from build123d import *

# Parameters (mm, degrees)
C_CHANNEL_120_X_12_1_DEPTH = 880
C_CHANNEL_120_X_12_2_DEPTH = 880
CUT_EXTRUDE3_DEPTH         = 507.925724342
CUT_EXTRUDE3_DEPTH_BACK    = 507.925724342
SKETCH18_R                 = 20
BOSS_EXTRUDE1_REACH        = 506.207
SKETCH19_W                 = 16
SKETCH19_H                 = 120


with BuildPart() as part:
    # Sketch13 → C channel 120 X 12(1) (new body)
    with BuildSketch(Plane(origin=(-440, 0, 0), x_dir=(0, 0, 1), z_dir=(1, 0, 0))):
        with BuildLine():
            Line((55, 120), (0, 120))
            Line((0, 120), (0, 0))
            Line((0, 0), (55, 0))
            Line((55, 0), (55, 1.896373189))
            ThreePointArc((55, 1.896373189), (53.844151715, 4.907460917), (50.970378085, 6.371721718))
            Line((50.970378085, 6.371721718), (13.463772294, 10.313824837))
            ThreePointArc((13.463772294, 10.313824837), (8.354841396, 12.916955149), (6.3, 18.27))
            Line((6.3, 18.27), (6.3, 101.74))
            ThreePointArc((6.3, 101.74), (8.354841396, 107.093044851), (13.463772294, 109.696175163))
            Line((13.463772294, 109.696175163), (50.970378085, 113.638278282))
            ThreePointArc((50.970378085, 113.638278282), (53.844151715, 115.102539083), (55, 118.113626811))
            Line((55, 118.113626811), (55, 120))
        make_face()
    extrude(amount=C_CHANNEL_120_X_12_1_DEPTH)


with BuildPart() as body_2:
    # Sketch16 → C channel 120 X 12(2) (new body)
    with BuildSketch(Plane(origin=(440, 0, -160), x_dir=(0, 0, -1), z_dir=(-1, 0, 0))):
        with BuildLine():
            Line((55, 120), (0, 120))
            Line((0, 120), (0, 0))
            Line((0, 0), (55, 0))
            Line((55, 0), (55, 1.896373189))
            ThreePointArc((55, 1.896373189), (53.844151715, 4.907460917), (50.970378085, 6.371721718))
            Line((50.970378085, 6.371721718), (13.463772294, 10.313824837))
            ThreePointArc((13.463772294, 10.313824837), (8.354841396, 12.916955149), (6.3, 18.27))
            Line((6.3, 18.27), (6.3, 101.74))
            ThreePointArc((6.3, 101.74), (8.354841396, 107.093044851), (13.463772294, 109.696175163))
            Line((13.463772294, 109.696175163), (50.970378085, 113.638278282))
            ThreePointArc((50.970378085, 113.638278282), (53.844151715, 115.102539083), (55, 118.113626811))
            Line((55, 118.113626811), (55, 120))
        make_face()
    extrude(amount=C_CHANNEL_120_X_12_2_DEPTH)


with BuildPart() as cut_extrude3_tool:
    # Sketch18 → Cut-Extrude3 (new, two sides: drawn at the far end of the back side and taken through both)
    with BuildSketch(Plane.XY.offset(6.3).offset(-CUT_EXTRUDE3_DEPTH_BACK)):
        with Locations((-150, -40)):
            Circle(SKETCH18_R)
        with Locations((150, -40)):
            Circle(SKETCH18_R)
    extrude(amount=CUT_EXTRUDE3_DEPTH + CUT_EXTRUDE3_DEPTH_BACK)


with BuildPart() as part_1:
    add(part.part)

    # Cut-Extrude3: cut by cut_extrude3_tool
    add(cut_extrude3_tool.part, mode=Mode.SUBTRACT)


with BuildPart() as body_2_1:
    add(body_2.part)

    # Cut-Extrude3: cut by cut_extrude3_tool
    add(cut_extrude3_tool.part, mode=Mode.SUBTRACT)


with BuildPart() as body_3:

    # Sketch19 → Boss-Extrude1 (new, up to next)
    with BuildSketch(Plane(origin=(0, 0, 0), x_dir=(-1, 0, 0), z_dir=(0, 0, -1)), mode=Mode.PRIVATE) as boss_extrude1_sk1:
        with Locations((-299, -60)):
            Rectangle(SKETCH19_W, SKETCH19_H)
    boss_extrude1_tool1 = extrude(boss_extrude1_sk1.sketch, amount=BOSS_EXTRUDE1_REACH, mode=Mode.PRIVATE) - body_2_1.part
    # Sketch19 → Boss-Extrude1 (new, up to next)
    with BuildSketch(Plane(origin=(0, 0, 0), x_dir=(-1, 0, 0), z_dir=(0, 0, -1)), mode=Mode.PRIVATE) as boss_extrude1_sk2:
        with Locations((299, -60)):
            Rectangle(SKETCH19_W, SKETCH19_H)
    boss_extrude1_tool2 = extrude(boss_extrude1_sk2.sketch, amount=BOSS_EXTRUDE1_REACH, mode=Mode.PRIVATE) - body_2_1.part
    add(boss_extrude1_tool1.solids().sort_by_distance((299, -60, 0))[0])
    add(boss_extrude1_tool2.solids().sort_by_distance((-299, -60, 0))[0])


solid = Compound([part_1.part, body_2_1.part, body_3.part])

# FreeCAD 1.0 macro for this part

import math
import FreeCAD as App
import Part
import Sketcher
from FreeCAD import Vector
Q = App.Units.Quantity

doc = App.newDocument("Part")
body = doc.addObject("PartDesign::Body", "Body")

sketch1 = body.newObject("Sketcher::SketchObject", "Sketch")
sketch1.AttachmentSupport = (doc.getObject("YZ_Plane"), [""])
sketch1.MapMode = "FlatFace"
sketch1.AttachmentOffset = App.Placement(Vector(0, 0, -440), App.Rotation())
sketch1.addGeometry(Part.LineSegment(Vector(-120, 55, 0), Vector(-120, 0, 0)), False)
sketch1.addGeometry(Part.LineSegment(Vector(-120, 0, 0), Vector(0, 0, 0)), False)
sketch1.addGeometry(Part.LineSegment(Vector(0, 0, 0), Vector(0, 55, 0)), False)
sketch1.addGeometry(Part.LineSegment(Vector(0, 55, 0), Vector(-1.9, 55, 0)), False)
sketch1.addGeometry(Part.ArcOfCircle(Part.Circle(Vector(-1.9, 50.5, 0), Vector(0, 0, 1), 4.5), math.radians(90), math.radians(174)), False)
sketch1.addGeometry(Part.LineSegment(Vector(-6.4, 51, 0), Vector(-10.3, 13.5, 0)), False)
sketch1.addGeometry(Part.ArcOfCircle(Part.Circle(Vector(-18.3, 14.3, 0), Vector(0, 0, 1), 8), math.radians(-90), math.radians(-6)), False)
sketch1.addGeometry(Part.LineSegment(Vector(-18.3, 6.3, 0), Vector(-101.7, 6.3, 0)), False)
sketch1.addGeometry(Part.ArcOfCircle(Part.Circle(Vector(-101.7, 14.3, 0), Vector(0, 0, 1), 8), math.radians(-174), math.radians(-90)), False)
sketch1.addGeometry(Part.LineSegment(Vector(-109.7, 13.5, 0), Vector(-113.6, 51, 0)), False)
sketch1.addGeometry(Part.ArcOfCircle(Part.Circle(Vector(-118.1, 50.5, 0), Vector(0, 0, 1), 4.5), math.radians(6), math.radians(90)), False)
sketch1.addGeometry(Part.LineSegment(Vector(-118.1, 55, 0), Vector(-120, 55, 0)), False)
sketch1.addConstraint(Sketcher.Constraint("Coincident", 0, 2, 1, 1))
sketch1.addConstraint(Sketcher.Constraint("Coincident", 1, 2, 2, 1))
sketch1.addConstraint(Sketcher.Constraint("Coincident", 2, 2, 3, 1))
sketch1.addConstraint(Sketcher.Constraint("Tangent", 3, 2, 4, 1))
sketch1.addConstraint(Sketcher.Constraint("Tangent", 4, 2, 5, 1))
sketch1.addConstraint(Sketcher.Constraint("Tangent", 5, 2, 6, 2))
sketch1.addConstraint(Sketcher.Constraint("Tangent", 6, 1, 7, 1))
sketch1.addConstraint(Sketcher.Constraint("Tangent", 7, 2, 8, 2))
sketch1.addConstraint(Sketcher.Constraint("Tangent", 8, 1, 9, 1))
sketch1.addConstraint(Sketcher.Constraint("Tangent", 9, 2, 10, 1))
sketch1.addConstraint(Sketcher.Constraint("Tangent", 10, 2, 11, 1))
sketch1.addConstraint(Sketcher.Constraint("Coincident", 11, 2, 0, 1))
sketch1.addConstraint(Sketcher.Constraint("Vertical", 0))
sketch1.addConstraint(Sketcher.Constraint("Horizontal", 1))
sketch1.addConstraint(Sketcher.Constraint("Vertical", 2))
sketch1.addConstraint(Sketcher.Constraint("Horizontal", 3))
sketch1.addConstraint(Sketcher.Constraint("Horizontal", 7))
sketch1.addConstraint(Sketcher.Constraint("Horizontal", 11))
sketch1.addConstraint(Sketcher.Constraint("Coincident", 1, 2, -1, 1))
sketch1.addConstraint(Sketcher.Constraint("Equal", 6, 8))
sketch1.addConstraint(Sketcher.Constraint("Equal", 4, 10))
sketch1.addConstraint(Sketcher.Constraint("Horizontal", 4, 3, 10, 3))
sketch1.addConstraint(Sketcher.Constraint("Horizontal", 5, 2, 8, 1))
sketch1.addConstraint(Sketcher.Constraint("Radius", 6, Q("8 mm")))
sketch1.addConstraint(Sketcher.Constraint("Radius", 4, Q("4.5 mm")))
sketch1.addConstraint(Sketcher.Constraint("DistanceX", 1, 1, 1, 2, Q("120 mm")))
sketch1.addConstraint(Sketcher.Constraint("DistanceY", 0, 2, 0, 1, Q("55 mm")))
sketch1.addConstraint(Sketcher.Constraint("Angle", 5, Q("-96 deg")))
sketch1.addConstraint(Sketcher.Constraint("DistanceX", 7, 2, 7, 1, Q("83.47 mm")))
sketch1.addConstraint(Sketcher.Constraint("DistanceY", -1, 1, 6, 3, Q("14.3 mm")))
sketch1.addConstraint(Sketcher.Constraint("DistanceX", 6, 3, -1, 1, Q("18.27 mm")))
pad1 = body.newObject("PartDesign::Pad", "Pad")
pad1.Profile = sketch1
pad1.Length = 880
body2 = doc.addObject("PartDesign::Body", "Body001")

sketch2 = body2.newObject("Sketcher::SketchObject", "Sketch001")
sketch2.AttachmentSupport = (doc.getObject("YZ_Plane001"), [""])
sketch2.MapMode = "FlatFace"
sketch2.AttachmentOffset = App.Placement(Vector(0, 0, 440), App.Rotation())
sketch2.addGeometry(Part.LineSegment(Vector(-120, -215, 0), Vector(-120, -160, 0)), False)
sketch2.addGeometry(Part.LineSegment(Vector(-120, -160, 0), Vector(0, -160, 0)), False)
sketch2.addGeometry(Part.LineSegment(Vector(0, -160, 0), Vector(0, -215, 0)), False)
sketch2.addGeometry(Part.LineSegment(Vector(0, -215, 0), Vector(-1.9, -215, 0)), False)
sketch2.addGeometry(Part.ArcOfCircle(Part.Circle(Vector(-1.9, -210.5, 0), Vector(0, 0, 1), 4.5), math.radians(-174), math.radians(-90)), False)
sketch2.addGeometry(Part.LineSegment(Vector(-6.4, -211, 0), Vector(-10.3, -173.5, 0)), False)
sketch2.addGeometry(Part.ArcOfCircle(Part.Circle(Vector(-18.3, -174.3, 0), Vector(0, 0, 1), 8), math.radians(6), math.radians(90)), False)
sketch2.addGeometry(Part.LineSegment(Vector(-18.3, -166.3, 0), Vector(-101.7, -166.3, 0)), False)
sketch2.addGeometry(Part.ArcOfCircle(Part.Circle(Vector(-101.7, -174.3, 0), Vector(0, 0, 1), 8), math.radians(90), math.radians(174)), False)
sketch2.addGeometry(Part.LineSegment(Vector(-109.7, -173.5, 0), Vector(-113.6, -211, 0)), False)
sketch2.addGeometry(Part.ArcOfCircle(Part.Circle(Vector(-118.1, -210.5, 0), Vector(0, 0, 1), 4.5), math.radians(-90), math.radians(-6)), False)
sketch2.addGeometry(Part.LineSegment(Vector(-118.1, -215, 0), Vector(-120, -215, 0)), False)
sketch2.addConstraint(Sketcher.Constraint("Coincident", 0, 2, 1, 1))
sketch2.addConstraint(Sketcher.Constraint("Coincident", 1, 2, 2, 1))
sketch2.addConstraint(Sketcher.Constraint("Coincident", 2, 2, 3, 1))
sketch2.addConstraint(Sketcher.Constraint("Tangent", 3, 2, 4, 2))
sketch2.addConstraint(Sketcher.Constraint("Tangent", 4, 1, 5, 1))
sketch2.addConstraint(Sketcher.Constraint("Tangent", 5, 2, 6, 1))
sketch2.addConstraint(Sketcher.Constraint("Tangent", 6, 2, 7, 1))
sketch2.addConstraint(Sketcher.Constraint("Tangent", 7, 2, 8, 1))
sketch2.addConstraint(Sketcher.Constraint("Tangent", 8, 2, 9, 1))
sketch2.addConstraint(Sketcher.Constraint("Tangent", 9, 2, 10, 2))
sketch2.addConstraint(Sketcher.Constraint("Tangent", 10, 1, 11, 1))
sketch2.addConstraint(Sketcher.Constraint("Coincident", 11, 2, 0, 1))
sketch2.addConstraint(Sketcher.Constraint("Vertical", 0))
sketch2.addConstraint(Sketcher.Constraint("Horizontal", 1))
sketch2.addConstraint(Sketcher.Constraint("Vertical", 2))
sketch2.addConstraint(Sketcher.Constraint("Horizontal", 3))
sketch2.addConstraint(Sketcher.Constraint("Horizontal", 7))
sketch2.addConstraint(Sketcher.Constraint("Horizontal", 11))
sketch2.addConstraint(Sketcher.Constraint("Equal", 6, 8))
sketch2.addConstraint(Sketcher.Constraint("Equal", 4, 10))
sketch2.addConstraint(Sketcher.Constraint("PointOnObject", 1, 2, -2))
sketch2.addConstraint(Sketcher.Constraint("Horizontal", 4, 3, 10, 3))
sketch2.addConstraint(Sketcher.Constraint("Horizontal", 5, 2, 8, 2))
sketch2.addConstraint(Sketcher.Constraint("Radius", 6, Q("8 mm")))
sketch2.addConstraint(Sketcher.Constraint("Radius", 4, Q("4.5 mm")))
sketch2.addConstraint(Sketcher.Constraint("DistanceX", 1, 1, 1, 2, Q("120 mm")))
sketch2.addConstraint(Sketcher.Constraint("DistanceY", 0, 1, 0, 2, Q("55 mm")))
sketch2.addConstraint(Sketcher.Constraint("Angle", 5, Q("96 deg")))
sketch2.addConstraint(Sketcher.Constraint("DistanceY", 0, 2, -1, 1, Q("160 mm")))
sketch2.addConstraint(Sketcher.Constraint("DistanceX", 7, 2, 7, 1, Q("83.47 mm")))
sketch2.addConstraint(Sketcher.Constraint("DistanceY", 6, 3, -1, 1, Q("174.3 mm")))
sketch2.addConstraint(Sketcher.Constraint("DistanceX", 6, 3, -1, 1, Q("18.27 mm")))
pad2 = body2.newObject("PartDesign::Pad", "Pad001")
pad2.Profile = sketch2
pad2.Length = 880
pad2.Reversed = True
body3 = doc.addObject("PartDesign::Body", "Body002")
body3.AllowCompound = True

sketch3 = body3.newObject("Sketcher::SketchObject", "Sketch002")
sketch3.AttachmentSupport = (doc.getObject("XY_Plane002"), [""])
sketch3.MapMode = "FlatFace"
sketch3.AttachmentOffset = App.Placement(Vector(0, 0, 6.3), App.Rotation())
sketch3.addGeometry(Part.Circle(Vector(-150, -40, 0), Vector(0, 0, 1), 20), False)
sketch3.addGeometry(Part.Circle(Vector(150, -40, 0), Vector(0, 0, 1), 20), False)
sketch3.addConstraint(Sketcher.Constraint("Equal", 0, 1))
sketch3.addConstraint(Sketcher.Constraint("Symmetric", 0, 3, 1, 3, -2))
sketch3.addConstraint(Sketcher.Constraint("Diameter", 0, Q("40 mm")))
sketch3.addConstraint(Sketcher.Constraint("DistanceX", 0, 3, -1, 1, Q("150 mm")))
sketch3.addConstraint(Sketcher.Constraint("DistanceY", 0, 3, -1, 1, Q("40 mm")))
pad3 = body3.newObject("PartDesign::Pad", "Pad002")
pad3.Profile = sketch3
pad3.Type = "TwoLengths"
pad3.Length = 507.925724
pad3.Length2 = 507.925724
doc.recompute()

body4 = doc.addObject("PartDesign::Body", "Body003")
body4.BaseFeature = body3
boolean = body.newObject("PartDesign::Boolean", "Boolean")
boolean.Type = "Cut"
boolean.addObjects([body4])
doc.recompute()

boolean2 = body2.newObject("PartDesign::Boolean", "Boolean001")
boolean2.Type = "Cut"
boolean2.addObjects([body3])
body5 = doc.addObject("PartDesign::Body", "Body004")
body5.AllowCompound = True

sketch4 = body5.newObject("Sketcher::SketchObject", "Sketch003")
sketch4.AttachmentSupport = (doc.getObject("XY_Plane004"), [""])
sketch4.MapMode = "FlatFace"
sketch4.addGeometry(Part.LineSegment(Vector(307, 0, 0), Vector(307, -120, 0)), False)
sketch4.addGeometry(Part.LineSegment(Vector(307, -120, 0), Vector(291, -120, 0)), False)
sketch4.addGeometry(Part.LineSegment(Vector(291, -120, 0), Vector(291, 0, 0)), False)
sketch4.addGeometry(Part.LineSegment(Vector(291, 0, 0), Vector(307, 0, 0)), False)
sketch4.addConstraint(Sketcher.Constraint("Coincident", 0, 2, 1, 1))
sketch4.addConstraint(Sketcher.Constraint("Coincident", 1, 2, 2, 1))
sketch4.addConstraint(Sketcher.Constraint("Coincident", 2, 2, 3, 1))
sketch4.addConstraint(Sketcher.Constraint("Coincident", 3, 2, 0, 1))
sketch4.addConstraint(Sketcher.Constraint("Vertical", 0))
sketch4.addConstraint(Sketcher.Constraint("Horizontal", 1))
sketch4.addConstraint(Sketcher.Constraint("Vertical", 2))
sketch4.addConstraint(Sketcher.Constraint("Horizontal", 3))
sketch4.addConstraint(Sketcher.Constraint("PointOnObject", 2, 2, -1))
sketch4.addConstraint(Sketcher.Constraint("DistanceX", 1, 2, 1, 1, Q("16 mm")))
sketch4.addConstraint(Sketcher.Constraint("DistanceY", 0, 2, 0, 1, Q("120 mm")))
sketch4.addConstraint(Sketcher.Constraint("DistanceX", -1, 1, 0, 2, Q("307 mm")))
pad4 = body5.newObject("PartDesign::Pad", "Pad003")
pad4.Profile = sketch4
pad4.Length = 160
pad4.Reversed = True

sketch5 = body5.newObject("Sketcher::SketchObject", "Sketch004")
sketch5.AttachmentSupport = (doc.getObject("XY_Plane004"), [""])
sketch5.MapMode = "FlatFace"
sketch5.addGeometry(Part.LineSegment(Vector(-291, 0, 0), Vector(-291, -120, 0)), False)
sketch5.addGeometry(Part.LineSegment(Vector(-291, -120, 0), Vector(-307, -120, 0)), False)
sketch5.addGeometry(Part.LineSegment(Vector(-307, -120, 0), Vector(-307, 0, 0)), False)
sketch5.addGeometry(Part.LineSegment(Vector(-307, 0, 0), Vector(-291, 0, 0)), False)
sketch5.addConstraint(Sketcher.Constraint("Coincident", 0, 2, 1, 1))
sketch5.addConstraint(Sketcher.Constraint("Coincident", 1, 2, 2, 1))
sketch5.addConstraint(Sketcher.Constraint("Coincident", 2, 2, 3, 1))
sketch5.addConstraint(Sketcher.Constraint("Coincident", 3, 2, 0, 1))
sketch5.addConstraint(Sketcher.Constraint("Vertical", 0))
sketch5.addConstraint(Sketcher.Constraint("Horizontal", 1))
sketch5.addConstraint(Sketcher.Constraint("Vertical", 2))
sketch5.addConstraint(Sketcher.Constraint("Horizontal", 3))
sketch5.addConstraint(Sketcher.Constraint("PointOnObject", 2, 2, -1))
sketch5.addConstraint(Sketcher.Constraint("DistanceX", 1, 2, 1, 1, Q("16 mm")))
sketch5.addConstraint(Sketcher.Constraint("DistanceY", 0, 2, 0, 1, Q("120 mm")))
sketch5.addConstraint(Sketcher.Constraint("DistanceX", 0, 2, -1, 1, Q("291 mm")))
pad5 = body5.newObject("PartDesign::Pad", "Pad004")
pad5.Profile = sketch5
pad5.Length = 160
pad5.Reversed = True

doc.recompute()
